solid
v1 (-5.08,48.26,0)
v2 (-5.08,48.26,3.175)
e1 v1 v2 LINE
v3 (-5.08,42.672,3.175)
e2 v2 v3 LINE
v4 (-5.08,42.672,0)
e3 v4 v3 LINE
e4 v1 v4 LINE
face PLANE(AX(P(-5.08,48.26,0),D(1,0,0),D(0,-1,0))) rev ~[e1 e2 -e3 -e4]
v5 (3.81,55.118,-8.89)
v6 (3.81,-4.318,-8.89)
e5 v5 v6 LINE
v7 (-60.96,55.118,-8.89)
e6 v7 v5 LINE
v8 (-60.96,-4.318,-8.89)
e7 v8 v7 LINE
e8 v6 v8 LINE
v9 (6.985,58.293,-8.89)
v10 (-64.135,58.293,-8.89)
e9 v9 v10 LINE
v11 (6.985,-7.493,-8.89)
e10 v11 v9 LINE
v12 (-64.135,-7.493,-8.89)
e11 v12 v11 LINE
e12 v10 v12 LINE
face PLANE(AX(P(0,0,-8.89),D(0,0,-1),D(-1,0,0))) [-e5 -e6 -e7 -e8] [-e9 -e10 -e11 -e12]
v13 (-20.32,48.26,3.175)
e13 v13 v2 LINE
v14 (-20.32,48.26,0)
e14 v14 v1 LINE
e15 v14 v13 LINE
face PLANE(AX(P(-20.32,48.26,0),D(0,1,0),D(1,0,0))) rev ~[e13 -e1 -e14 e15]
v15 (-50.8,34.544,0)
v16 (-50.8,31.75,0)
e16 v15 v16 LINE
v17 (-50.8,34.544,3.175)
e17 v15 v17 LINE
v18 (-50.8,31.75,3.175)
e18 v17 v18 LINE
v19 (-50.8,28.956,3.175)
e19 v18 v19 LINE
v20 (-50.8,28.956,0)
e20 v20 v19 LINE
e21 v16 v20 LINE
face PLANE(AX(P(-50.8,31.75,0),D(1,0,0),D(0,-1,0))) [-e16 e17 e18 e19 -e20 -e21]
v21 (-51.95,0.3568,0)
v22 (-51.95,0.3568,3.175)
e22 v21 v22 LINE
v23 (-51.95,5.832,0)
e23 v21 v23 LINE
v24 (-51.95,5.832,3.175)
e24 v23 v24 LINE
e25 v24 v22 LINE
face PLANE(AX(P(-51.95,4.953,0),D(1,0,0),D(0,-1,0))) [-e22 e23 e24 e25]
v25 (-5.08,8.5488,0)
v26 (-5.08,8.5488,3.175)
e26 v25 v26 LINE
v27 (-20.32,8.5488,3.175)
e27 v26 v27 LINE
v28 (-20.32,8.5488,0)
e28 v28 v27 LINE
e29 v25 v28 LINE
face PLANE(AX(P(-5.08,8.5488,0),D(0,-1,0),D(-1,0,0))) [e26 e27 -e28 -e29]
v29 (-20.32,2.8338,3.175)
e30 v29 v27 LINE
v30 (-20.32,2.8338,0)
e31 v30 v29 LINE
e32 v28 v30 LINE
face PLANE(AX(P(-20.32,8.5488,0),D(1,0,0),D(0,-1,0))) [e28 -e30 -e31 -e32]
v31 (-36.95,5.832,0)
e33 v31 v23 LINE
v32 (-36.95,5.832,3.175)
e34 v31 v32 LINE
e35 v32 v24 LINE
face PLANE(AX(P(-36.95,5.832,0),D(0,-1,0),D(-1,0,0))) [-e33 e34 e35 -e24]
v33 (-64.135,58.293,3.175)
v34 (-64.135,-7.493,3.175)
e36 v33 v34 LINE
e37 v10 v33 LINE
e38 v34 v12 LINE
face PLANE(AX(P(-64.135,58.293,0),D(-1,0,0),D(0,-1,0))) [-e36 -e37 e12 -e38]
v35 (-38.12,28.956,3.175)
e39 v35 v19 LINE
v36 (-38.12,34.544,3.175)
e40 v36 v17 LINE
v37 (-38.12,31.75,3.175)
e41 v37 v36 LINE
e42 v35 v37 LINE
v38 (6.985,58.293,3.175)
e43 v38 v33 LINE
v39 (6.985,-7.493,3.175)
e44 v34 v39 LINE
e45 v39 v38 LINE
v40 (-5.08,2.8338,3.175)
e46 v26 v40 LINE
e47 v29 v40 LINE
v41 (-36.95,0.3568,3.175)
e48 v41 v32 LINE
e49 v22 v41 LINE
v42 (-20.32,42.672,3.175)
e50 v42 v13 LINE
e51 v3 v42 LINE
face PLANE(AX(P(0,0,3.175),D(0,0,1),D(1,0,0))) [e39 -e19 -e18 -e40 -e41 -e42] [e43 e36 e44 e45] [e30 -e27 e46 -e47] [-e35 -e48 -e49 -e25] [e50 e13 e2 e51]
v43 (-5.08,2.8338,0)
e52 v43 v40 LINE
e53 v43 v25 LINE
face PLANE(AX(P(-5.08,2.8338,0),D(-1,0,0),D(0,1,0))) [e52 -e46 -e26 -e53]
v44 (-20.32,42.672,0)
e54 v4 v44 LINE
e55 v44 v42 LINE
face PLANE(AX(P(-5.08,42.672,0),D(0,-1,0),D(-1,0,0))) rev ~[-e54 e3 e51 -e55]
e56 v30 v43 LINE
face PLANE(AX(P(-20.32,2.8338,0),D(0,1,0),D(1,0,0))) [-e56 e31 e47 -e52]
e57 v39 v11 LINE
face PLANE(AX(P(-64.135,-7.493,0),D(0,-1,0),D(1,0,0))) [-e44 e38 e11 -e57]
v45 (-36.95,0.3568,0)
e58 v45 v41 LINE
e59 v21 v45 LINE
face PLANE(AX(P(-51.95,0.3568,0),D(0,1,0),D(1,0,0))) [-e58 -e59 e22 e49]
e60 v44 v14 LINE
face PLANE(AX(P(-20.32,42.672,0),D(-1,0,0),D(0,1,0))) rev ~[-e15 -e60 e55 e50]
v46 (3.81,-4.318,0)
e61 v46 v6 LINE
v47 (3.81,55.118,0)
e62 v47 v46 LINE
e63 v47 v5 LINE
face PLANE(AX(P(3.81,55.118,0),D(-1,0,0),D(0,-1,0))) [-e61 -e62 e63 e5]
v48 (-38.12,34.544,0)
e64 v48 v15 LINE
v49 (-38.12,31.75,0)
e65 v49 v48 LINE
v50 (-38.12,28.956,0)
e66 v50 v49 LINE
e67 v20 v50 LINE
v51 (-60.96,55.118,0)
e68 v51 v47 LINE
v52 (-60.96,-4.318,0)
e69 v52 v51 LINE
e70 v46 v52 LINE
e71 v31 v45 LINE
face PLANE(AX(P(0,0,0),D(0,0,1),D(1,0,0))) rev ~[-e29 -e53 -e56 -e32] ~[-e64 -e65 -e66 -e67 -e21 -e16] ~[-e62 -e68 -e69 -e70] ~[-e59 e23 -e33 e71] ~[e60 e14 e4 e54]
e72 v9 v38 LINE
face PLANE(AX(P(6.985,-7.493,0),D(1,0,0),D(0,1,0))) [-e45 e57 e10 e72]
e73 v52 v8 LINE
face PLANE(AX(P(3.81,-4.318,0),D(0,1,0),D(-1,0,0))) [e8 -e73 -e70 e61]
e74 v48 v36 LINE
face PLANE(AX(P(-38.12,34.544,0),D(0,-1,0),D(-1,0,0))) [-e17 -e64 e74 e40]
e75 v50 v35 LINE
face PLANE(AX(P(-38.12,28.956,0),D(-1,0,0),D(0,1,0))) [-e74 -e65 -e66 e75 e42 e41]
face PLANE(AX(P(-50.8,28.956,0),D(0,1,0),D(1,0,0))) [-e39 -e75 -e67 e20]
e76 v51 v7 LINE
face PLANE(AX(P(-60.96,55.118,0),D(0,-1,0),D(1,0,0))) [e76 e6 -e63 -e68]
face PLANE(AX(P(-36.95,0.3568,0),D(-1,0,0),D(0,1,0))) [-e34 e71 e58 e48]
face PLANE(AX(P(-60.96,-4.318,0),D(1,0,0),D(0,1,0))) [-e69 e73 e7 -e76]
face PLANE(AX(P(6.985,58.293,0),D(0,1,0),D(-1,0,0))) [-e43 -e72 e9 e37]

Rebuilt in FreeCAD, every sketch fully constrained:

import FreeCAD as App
import Part
import Sketcher
from FreeCAD import Vector
Q = App.Units.Quantity

doc = App.newDocument("Part")
body = doc.addObject("PartDesign::Body", "Body")

sketch1 = body.newObject("Sketcher::SketchObject", "Sketch")
sketch1.AttachmentSupport = (doc.getObject("XY_Plane"), [""])
sketch1.MapMode = "FlatFace"
sketch1.addGeometry(Part.LineSegment(Vector(6.985, 58.293, 0), Vector(-64.135, 58.293, 0)), False)
sketch1.addGeometry(Part.LineSegment(Vector(-64.135, 58.293, 0), Vector(-64.135, -7.493, 0)), False)
sketch1.addGeometry(Part.LineSegment(Vector(-64.135, -7.493, 0), Vector(6.985, -7.493, 0)), False)
sketch1.addGeometry(Part.LineSegment(Vector(6.985, -7.493, 0), Vector(6.985, 58.293, 0)), False)
sketch1.addGeometry(Part.LineSegment(Vector(-36.95, 0.3568, 0), Vector(-51.95, 0.3568, 0)), False)
sketch1.addGeometry(Part.LineSegment(Vector(-51.95, 0.3568, 0), Vector(-51.95, 5.832, 0)), False)
sketch1.addGeometry(Part.LineSegment(Vector(-51.95, 5.832, 0), Vector(-36.95, 5.832, 0)), False)
sketch1.addGeometry(Part.LineSegment(Vector(-36.95, 5.832, 0), Vector(-36.95, 0.3568, 0)), False)
sketch1.addGeometry(Part.LineSegment(Vector(-5.08, 2.8338, 0), Vector(-20.32, 2.8338, 0)), False)
sketch1.addGeometry(Part.LineSegment(Vector(-20.32, 2.8338, 0), Vector(-20.32, 8.5488, 0)), False)
sketch1.addGeometry(Part.LineSegment(Vector(-20.32, 8.5488, 0), Vector(-5.08, 8.5488, 0)), False)
sketch1.addGeometry(Part.LineSegment(Vector(-5.08, 8.5488, 0), Vector(-5.08, 2.8338, 0)), False)
sketch1.addGeometry(Part.LineSegment(Vector(-50.8, 28.956, 0), Vector(-50.8, 31.75, 0)), False)
sketch1.addGeometry(Part.LineSegment(Vector(-50.8, 31.75, 0), Vector(-50.8, 34.544, 0)), False)
sketch1.addGeometry(Part.LineSegment(Vector(-50.8, 34.544, 0), Vector(-38.12, 34.544, 0)), False)
sketch1.addGeometry(Part.LineSegment(Vector(-38.12, 34.544, 0), Vector(-38.12, 31.75, 0)), False)
sketch1.addGeometry(Part.LineSegment(Vector(-38.12, 31.75, 0), Vector(-38.12, 28.956, 0)), False)
sketch1.addGeometry(Part.LineSegment(Vector(-38.12, 28.956, 0), Vector(-50.8, 28.956, 0)), False)
sketch1.addGeometry(Part.LineSegment(Vector(-20.32, 42.672, 0), Vector(-20.32, 48.26, 0)), False)
sketch1.addGeometry(Part.LineSegment(Vector(-20.32, 48.26, 0), Vector(-5.08, 48.26, 0)), False)
sketch1.addGeometry(Part.LineSegment(Vector(-5.08, 48.26, 0), Vector(-5.08, 42.672, 0)), False)
sketch1.addGeometry(Part.LineSegment(Vector(-5.08, 42.672, 0), Vector(-20.32, 42.672, 0)), False)
sketch1.addConstraint(Sketcher.Constraint("Coincident", 0, 2, 1, 1))
sketch1.addConstraint(Sketcher.Constraint("Coincident", 1, 2, 2, 1))
sketch1.addConstraint(Sketcher.Constraint("Coincident", 2, 2, 3, 1))
sketch1.addConstraint(Sketcher.Constraint("Coincident", 3, 2, 0, 1))
sketch1.addConstraint(Sketcher.Constraint("Coincident", 4, 2, 5, 1))
sketch1.addConstraint(Sketcher.Constraint("Coincident", 5, 2, 6, 1))
sketch1.addConstraint(Sketcher.Constraint("Coincident", 6, 2, 7, 1))
sketch1.addConstraint(Sketcher.Constraint("Coincident", 7, 2, 4, 1))
sketch1.addConstraint(Sketcher.Constraint("Coincident", 8, 2, 9, 1))
sketch1.addConstraint(Sketcher.Constraint("Coincident", 9, 2, 10, 1))
sketch1.addConstraint(Sketcher.Constraint("Coincident", 10, 2, 11, 1))
sketch1.addConstraint(Sketcher.Constraint("Coincident", 11, 2, 8, 1))
sketch1.addConstraint(Sketcher.Constraint("Coincident", 12, 2, 13, 1))
sketch1.addConstraint(Sketcher.Constraint("Coincident", 13, 2, 14, 1))
sketch1.addConstraint(Sketcher.Constraint("Coincident", 14, 2, 15, 1))
sketch1.addConstraint(Sketcher.Constraint("Coincident", 15, 2, 16, 1))
sketch1.addConstraint(Sketcher.Constraint("Coincident", 16, 2, 17, 1))
sketch1.addConstraint(Sketcher.Constraint("Coincident", 17, 2, 12, 1))
sketch1.addConstraint(Sketcher.Constraint("Coincident", 18, 2, 19, 1))
sketch1.addConstraint(Sketcher.Constraint("Coincident", 19, 2, 20, 1))
sketch1.addConstraint(Sketcher.Constraint("Coincident", 20, 2, 21, 1))
sketch1.addConstraint(Sketcher.Constraint("Coincident", 21, 2, 18, 1))
sketch1.addConstraint(Sketcher.Constraint("Horizontal", 0))
sketch1.addConstraint(Sketcher.Constraint("Vertical", 1))
sketch1.addConstraint(Sketcher.Constraint("Horizontal", 2))
sketch1.addConstraint(Sketcher.Constraint("Vertical", 3))
sketch1.addConstraint(Sketcher.Constraint("Horizontal", 4))
sketch1.addConstraint(Sketcher.Constraint("Vertical", 5))
sketch1.addConstraint(Sketcher.Constraint("Horizontal", 6))
sketch1.addConstraint(Sketcher.Constraint("Vertical", 7))
sketch1.addConstraint(Sketcher.Constraint("Horizontal", 8))
sketch1.addConstraint(Sketcher.Constraint("Vertical", 9))
sketch1.addConstraint(Sketcher.Constraint("Horizontal", 10))
sketch1.addConstraint(Sketcher.Constraint("Vertical", 11))
sketch1.addConstraint(Sketcher.Constraint("Vertical", 12))
sketch1.addConstraint(Sketcher.Constraint("Vertical", 13))
sketch1.addConstraint(Sketcher.Constraint("Horizontal", 14))
sketch1.addConstraint(Sketcher.Constraint("Vertical", 15))
sketch1.addConstraint(Sketcher.Constraint("Vertical", 16))
sketch1.addConstraint(Sketcher.Constraint("Horizontal", 17))
sketch1.addConstraint(Sketcher.Constraint("Vertical", 18))
sketch1.addConstraint(Sketcher.Constraint("Horizontal", 19))
sketch1.addConstraint(Sketcher.Constraint("Vertical", 20))
sketch1.addConstraint(Sketcher.Constraint("Horizontal", 21))
sketch1.addConstraint(Sketcher.Constraint("Horizontal", 12, 2, 15, 2))
sketch1.addConstraint(Sketcher.Constraint("Vertical", 9, 2, 18, 2))
sketch1.addConstraint(Sketcher.Constraint("Vertical", 11, 2, 19, 2))
sketch1.addConstraint(Sketcher.Constraint("Equal", 12, 13))
sketch1.addConstraint(Sketcher.Constraint("DistanceX", 8, 2, 8, 1, Q("0.6 in")))
sketch1.addConstraint(Sketcher.Constraint("DistanceY", 18, 1, 18, 2, Q("0.22 in")))
sketch1.addConstraint(Sketcher.Constraint("DistanceY", 9, 1, 9, 2, Q("0.225 in")))
sketch1.addConstraint(Sketcher.Constraint("DistanceY", 16, 2, 14, 2, Q("0.22 in")))
sketch1.addConstraint(Sketcher.Constraint("DistanceX", 0, 2, 0, 1, Q("2.8 in")))
sketch1.addConstraint(Sketcher.Constraint("DistanceX", 12, 2, -1, 1, Q("2 in")))
sketch1.addConstraint(Sketcher.Constraint("DistanceY", 1, 2, 1, 1, Q("2.59 in")))
sketch1.addConstraint(Sketcher.Constraint("DistanceX", 8, 2, -1, 1, Q("0.8 in")))
sketch1.addConstraint(Sketcher.Constraint("DistanceY", -1, 1, 18, 2, Q("1.9 in")))
sketch1.addConstraint(Sketcher.Constraint("DistanceY", -1, 1, 12, 2, Q("1.25 in")))
sketch1.addConstraint(Sketcher.Constraint("DistanceX", 0, 2, -1, 1, Q("2.525 in")))
sketch1.addConstraint(Sketcher.Constraint("DistanceY", -1, 1, 0, 2, Q("2.295 in")))
sketch1.addConstraint(Sketcher.Constraint("DistanceX", 4, 2, 4, 1, 15.0))
sketch1.addConstraint(Sketcher.Constraint("DistanceX", 14, 1, 14, 2, 12.68))
sketch1.addConstraint(Sketcher.Constraint("DistanceY", 5, 1, 5, 2, 5.4752))
sketch1.addConstraint(Sketcher.Constraint("DistanceY", -1, 1, 5, 2, Q("0.2296 in")))
sketch1.addConstraint(Sketcher.Constraint("DistanceX", 5, 2, 14, 2, Q("0.5445 in")))
sketch1.addConstraint(Sketcher.Constraint("DistanceY", -1, 1, 8, 2, 2.8338))
pad1 = body.newObject("PartDesign::Pad", "Pad")
pad1.Profile = sketch1
pad1.Length = Q("0.125 in")

sketch2 = body.newObject("Sketcher::SketchObject", "Sketch001")
sketch2.AttachmentSupport = (doc.getObject("XY_Plane"), [""])
sketch2.MapMode = "FlatFace"
sketch2.addGeometry(Part.LineSegment(Vector(6.985, 58.293, 0), Vector(6.985, -7.493, 0)), False)
sketch2.addGeometry(Part.LineSegment(Vector(6.985, -7.493, 0), Vector(-64.135, -7.493, 0)), False)
sketch2.addGeometry(Part.LineSegment(Vector(-64.135, -7.493, 0), Vector(-64.135, 58.293, 0)), False)
sketch2.addGeometry(Part.LineSegment(Vector(-64.135, 58.293, 0), Vector(6.985, 58.293, 0)), False)
sketch2.addGeometry(Part.LineSegment(Vector(3.81, -4.318, 0), Vector(3.81, 55.118, 0)), False)
sketch2.addGeometry(Part.LineSegment(Vector(3.81, 55.118, 0), Vector(-60.96, 55.118, 0)), False)
sketch2.addGeometry(Part.LineSegment(Vector(-60.96, 55.118, 0), Vector(-60.96, -4.318, 0)), False)
sketch2.addGeometry(Part.LineSegment(Vector(-60.96, -4.318, 0), Vector(3.81, -4.318, 0)), False)
sketch2.addConstraint(Sketcher.Constraint("Coincident", 0, 2, 1, 1))
sketch2.addConstraint(Sketcher.Constraint("Coincident", 1, 2, 2, 1))
sketch2.addConstraint(Sketcher.Constraint("Coincident", 2, 2, 3, 1))
sketch2.addConstraint(Sketcher.Constraint("Coincident", 3, 2, 0, 1))
sketch2.addConstraint(Sketcher.Constraint("Coincident", 4, 2, 5, 1))
sketch2.addConstraint(Sketcher.Constraint("Coincident", 5, 2, 6, 1))
sketch2.addConstraint(Sketcher.Constraint("Coincident", 6, 2, 7, 1))
sketch2.addConstraint(Sketcher.Constraint("Coincident", 7, 2, 4, 1))
sketch2.addConstraint(Sketcher.Constraint("Vertical", 0))
sketch2.addConstraint(Sketcher.Constraint("Horizontal", 1))
sketch2.addConstraint(Sketcher.Constraint("Vertical", 2))
sketch2.addConstraint(Sketcher.Constraint("Horizontal", 3))
sketch2.addConstraint(Sketcher.Constraint("Vertical", 4))
sketch2.addConstraint(Sketcher.Constraint("Horizontal", 5))
sketch2.addConstraint(Sketcher.Constraint("Vertical", 6))
sketch2.addConstraint(Sketcher.Constraint("Horizontal", 7))
sketch2.addConstraint(Sketcher.Constraint("DistanceX", 1, 2, 1, 1, Q("2.8 in")))
sketch2.addConstraint(Sketcher.Constraint("DistanceX", 4, 2, 3, 2, Q("0.125 in")))
sketch2.addConstraint(Sketcher.Constraint("DistanceY", 4, 2, 3, 2, Q("0.125 in")))
sketch2.addConstraint(Sketcher.Constraint("DistanceX", 2, 2, 5, 2, Q("0.125 in")))
sketch2.addConstraint(Sketcher.Constraint("DistanceY", 1, 2, 6, 2, Q("0.125 in")))
sketch2.addConstraint(Sketcher.Constraint("DistanceY", 0, 2, 0, 1, Q("2.59 in")))
sketch2.addConstraint(Sketcher.Constraint("DistanceX", 5, 2, -1, 1, Q("2.4 in")))
sketch2.addConstraint(Sketcher.Constraint("DistanceY", -1, 1, 4, 2, Q("2.17 in")))
pad2 = body.newObject("PartDesign::Pad", "Pad001")
pad2.Profile = sketch2
pad2.Length = Q("0.35 in")
pad2.Reversed = True

doc.recompute()
